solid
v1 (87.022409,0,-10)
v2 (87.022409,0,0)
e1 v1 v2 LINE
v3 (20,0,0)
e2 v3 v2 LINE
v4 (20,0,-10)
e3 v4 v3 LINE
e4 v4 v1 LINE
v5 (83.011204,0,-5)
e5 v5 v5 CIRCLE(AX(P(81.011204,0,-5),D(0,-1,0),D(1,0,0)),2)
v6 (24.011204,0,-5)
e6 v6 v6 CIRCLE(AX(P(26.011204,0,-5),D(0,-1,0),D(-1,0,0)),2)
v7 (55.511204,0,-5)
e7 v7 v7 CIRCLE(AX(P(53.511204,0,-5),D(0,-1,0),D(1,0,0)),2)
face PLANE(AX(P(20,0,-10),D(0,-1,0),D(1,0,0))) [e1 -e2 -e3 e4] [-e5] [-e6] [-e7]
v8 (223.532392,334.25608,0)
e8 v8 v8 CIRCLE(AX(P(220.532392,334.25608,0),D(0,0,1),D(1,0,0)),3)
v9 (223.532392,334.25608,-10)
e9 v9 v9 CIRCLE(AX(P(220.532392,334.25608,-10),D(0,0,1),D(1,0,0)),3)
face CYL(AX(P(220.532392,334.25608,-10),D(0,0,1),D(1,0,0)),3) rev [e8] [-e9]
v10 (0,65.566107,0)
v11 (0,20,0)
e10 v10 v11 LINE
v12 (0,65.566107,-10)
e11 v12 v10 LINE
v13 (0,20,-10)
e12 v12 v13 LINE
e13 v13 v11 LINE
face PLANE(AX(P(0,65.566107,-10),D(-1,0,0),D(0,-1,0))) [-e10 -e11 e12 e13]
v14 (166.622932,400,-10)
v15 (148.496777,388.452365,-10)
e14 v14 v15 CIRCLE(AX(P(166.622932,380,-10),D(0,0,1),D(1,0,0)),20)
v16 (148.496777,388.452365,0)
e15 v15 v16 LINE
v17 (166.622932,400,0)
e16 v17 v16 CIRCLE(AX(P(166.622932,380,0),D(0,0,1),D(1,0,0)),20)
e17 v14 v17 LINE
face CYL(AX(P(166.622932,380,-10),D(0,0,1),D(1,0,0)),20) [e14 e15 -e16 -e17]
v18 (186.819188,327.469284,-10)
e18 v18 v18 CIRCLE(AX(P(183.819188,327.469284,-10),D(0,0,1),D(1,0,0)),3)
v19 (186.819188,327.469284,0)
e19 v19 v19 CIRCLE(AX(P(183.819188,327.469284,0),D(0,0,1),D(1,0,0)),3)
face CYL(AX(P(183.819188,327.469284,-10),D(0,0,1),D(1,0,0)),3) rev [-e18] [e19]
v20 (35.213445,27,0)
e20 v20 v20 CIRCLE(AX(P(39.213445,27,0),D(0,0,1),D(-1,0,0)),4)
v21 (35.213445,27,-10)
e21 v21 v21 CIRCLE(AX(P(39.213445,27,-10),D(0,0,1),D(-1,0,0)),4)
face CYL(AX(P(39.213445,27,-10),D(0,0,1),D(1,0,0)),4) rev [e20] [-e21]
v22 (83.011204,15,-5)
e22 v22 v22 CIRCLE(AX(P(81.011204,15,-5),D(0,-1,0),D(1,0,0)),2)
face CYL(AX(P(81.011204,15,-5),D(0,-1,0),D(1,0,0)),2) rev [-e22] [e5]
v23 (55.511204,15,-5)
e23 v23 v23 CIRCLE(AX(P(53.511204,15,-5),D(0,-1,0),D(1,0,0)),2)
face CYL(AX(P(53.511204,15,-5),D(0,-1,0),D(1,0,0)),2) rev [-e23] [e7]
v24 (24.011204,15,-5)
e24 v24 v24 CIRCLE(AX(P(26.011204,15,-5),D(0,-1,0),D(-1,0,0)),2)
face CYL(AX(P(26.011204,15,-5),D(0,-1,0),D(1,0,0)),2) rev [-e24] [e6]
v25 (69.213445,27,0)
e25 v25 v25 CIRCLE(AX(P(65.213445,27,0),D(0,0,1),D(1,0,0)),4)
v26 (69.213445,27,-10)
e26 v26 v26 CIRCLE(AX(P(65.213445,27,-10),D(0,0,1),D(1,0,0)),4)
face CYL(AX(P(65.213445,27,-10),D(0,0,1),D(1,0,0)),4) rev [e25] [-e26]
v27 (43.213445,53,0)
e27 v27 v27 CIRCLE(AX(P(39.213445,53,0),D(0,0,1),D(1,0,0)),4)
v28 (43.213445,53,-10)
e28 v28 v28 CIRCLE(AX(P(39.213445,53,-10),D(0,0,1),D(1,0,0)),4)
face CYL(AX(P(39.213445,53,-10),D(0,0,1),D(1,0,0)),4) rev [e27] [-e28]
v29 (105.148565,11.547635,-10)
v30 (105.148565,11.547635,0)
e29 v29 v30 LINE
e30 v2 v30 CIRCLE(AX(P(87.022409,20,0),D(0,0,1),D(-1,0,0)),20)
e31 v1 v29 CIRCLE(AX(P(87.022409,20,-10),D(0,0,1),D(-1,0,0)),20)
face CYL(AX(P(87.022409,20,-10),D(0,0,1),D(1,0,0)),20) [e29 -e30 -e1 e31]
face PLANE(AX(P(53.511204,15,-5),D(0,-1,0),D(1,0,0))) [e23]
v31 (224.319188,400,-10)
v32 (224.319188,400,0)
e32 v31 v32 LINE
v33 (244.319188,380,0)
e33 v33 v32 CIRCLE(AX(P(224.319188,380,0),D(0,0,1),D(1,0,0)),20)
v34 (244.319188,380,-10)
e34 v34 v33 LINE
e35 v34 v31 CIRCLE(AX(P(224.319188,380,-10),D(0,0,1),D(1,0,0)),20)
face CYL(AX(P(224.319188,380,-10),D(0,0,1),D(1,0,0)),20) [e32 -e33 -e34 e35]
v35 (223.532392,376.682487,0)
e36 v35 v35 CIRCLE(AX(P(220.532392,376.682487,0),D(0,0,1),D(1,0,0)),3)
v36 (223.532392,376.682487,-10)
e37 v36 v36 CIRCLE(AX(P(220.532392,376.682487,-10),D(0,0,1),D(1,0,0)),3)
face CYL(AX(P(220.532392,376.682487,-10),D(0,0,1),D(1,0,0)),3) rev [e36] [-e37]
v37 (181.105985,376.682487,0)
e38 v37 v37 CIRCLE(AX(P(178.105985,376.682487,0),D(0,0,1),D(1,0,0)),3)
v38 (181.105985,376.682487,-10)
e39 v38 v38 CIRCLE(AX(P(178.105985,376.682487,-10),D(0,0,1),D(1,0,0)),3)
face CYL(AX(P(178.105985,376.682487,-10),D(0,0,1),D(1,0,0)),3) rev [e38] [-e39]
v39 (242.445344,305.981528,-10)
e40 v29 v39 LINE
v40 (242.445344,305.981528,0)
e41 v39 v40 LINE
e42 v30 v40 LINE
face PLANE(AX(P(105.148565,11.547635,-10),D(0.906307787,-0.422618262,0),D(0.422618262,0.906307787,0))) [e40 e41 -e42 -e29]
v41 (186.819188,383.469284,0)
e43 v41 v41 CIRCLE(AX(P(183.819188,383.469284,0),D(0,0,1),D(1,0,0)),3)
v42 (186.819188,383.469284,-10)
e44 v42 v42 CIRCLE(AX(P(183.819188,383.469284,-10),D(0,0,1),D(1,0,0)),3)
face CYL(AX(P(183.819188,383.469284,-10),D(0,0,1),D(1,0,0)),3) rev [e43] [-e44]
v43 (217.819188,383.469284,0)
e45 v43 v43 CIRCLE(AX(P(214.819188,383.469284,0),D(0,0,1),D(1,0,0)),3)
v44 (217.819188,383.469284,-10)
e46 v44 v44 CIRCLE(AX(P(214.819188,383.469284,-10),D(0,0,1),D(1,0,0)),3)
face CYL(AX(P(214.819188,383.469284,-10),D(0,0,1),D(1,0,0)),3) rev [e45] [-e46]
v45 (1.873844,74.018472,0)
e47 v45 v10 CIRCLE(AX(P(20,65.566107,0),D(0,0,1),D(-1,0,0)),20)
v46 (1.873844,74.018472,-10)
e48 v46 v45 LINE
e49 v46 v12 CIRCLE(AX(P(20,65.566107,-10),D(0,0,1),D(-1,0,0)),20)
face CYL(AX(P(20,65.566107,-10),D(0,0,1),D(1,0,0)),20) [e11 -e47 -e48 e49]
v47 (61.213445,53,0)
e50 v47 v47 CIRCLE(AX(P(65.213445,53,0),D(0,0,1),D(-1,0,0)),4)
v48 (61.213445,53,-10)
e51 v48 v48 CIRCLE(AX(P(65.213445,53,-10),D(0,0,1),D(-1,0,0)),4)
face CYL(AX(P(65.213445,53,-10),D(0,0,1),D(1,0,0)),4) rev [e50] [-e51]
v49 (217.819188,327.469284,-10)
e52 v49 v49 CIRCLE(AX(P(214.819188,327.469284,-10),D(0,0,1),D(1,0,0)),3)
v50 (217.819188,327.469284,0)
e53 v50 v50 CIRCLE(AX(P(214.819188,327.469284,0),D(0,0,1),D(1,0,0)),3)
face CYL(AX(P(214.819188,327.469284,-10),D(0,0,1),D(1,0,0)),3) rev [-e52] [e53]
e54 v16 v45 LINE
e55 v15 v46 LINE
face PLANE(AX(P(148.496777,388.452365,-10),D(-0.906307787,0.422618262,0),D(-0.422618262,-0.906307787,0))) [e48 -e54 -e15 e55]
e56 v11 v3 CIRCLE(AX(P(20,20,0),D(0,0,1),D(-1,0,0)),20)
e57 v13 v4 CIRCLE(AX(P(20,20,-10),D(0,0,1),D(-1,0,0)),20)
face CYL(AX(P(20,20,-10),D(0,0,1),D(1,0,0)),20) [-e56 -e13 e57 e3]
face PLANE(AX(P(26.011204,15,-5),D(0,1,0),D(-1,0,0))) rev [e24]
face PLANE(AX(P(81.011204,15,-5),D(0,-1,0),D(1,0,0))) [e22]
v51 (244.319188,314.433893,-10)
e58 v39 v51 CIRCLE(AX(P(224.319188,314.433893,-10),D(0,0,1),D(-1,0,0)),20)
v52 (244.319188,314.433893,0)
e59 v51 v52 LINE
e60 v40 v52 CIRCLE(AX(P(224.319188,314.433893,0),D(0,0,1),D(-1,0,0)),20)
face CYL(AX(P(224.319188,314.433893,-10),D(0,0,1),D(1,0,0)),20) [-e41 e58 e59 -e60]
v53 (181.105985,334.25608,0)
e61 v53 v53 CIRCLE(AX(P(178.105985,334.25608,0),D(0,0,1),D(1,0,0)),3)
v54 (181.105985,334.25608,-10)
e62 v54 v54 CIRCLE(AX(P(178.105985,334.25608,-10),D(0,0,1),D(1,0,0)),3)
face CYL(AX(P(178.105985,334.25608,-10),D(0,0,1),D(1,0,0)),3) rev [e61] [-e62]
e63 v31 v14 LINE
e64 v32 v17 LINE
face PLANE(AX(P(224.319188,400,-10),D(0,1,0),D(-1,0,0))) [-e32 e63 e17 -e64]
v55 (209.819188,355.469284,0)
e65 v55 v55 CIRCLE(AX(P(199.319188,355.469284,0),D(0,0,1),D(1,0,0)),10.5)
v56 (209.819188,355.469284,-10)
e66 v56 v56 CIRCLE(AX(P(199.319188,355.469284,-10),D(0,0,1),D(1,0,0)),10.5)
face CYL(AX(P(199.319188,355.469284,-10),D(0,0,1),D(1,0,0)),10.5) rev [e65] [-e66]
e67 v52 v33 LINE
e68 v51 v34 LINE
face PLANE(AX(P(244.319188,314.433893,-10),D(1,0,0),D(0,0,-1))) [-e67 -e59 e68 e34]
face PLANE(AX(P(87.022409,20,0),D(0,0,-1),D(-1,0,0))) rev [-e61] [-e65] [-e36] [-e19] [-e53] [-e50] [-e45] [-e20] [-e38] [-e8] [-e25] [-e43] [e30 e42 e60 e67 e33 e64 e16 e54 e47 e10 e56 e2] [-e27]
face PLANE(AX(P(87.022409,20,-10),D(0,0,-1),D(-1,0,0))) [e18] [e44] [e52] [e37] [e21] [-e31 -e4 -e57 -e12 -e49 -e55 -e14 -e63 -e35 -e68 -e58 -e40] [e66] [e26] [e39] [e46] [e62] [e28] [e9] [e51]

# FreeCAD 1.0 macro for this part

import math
import FreeCAD as App
import Part
import Sketcher
from FreeCAD import Vector
Q = App.Units.Quantity

doc = App.newDocument("Part")
params = doc.addObject("Spreadsheet::Sheet", "Params")
for row, (alias, value) in enumerate([
    ("sketch1_diameter", "8 mm"),
    ("sketch1_diameter2", "6 mm"),
    ("sketch1_diameter3", "21 mm"),
    ("sketch1_radius", "20 mm"),
    ("pad1_length", "10 mm"),
    ("sketch2_diameter", "4 mm"),
    ("pocket1_length", "15 mm"),
], start=1):
    params.set(f"A{row}", alias)
    params.set(f"B{row}", "=" + value)
    params.setAlias(f"B{row}", alias)

body = doc.addObject("PartDesign::Body", "Body")

# Sketch on XY plane
sketch1 = body.newObject("Sketcher::SketchObject", "Sketch")
sketch1.AttachmentSupport = (doc.getObject("XY_Plane"), [""])
sketch1.MapMode = "FlatFace"
sketch1.addGeometry(Part.LineSegment(Vector(20, 0, 0), Vector(87, 0, 0)), False)
sketch1.addGeometry(Part.ArcOfCircle(Part.Circle(Vector(87, 20, 0), Vector(0, 0, 1), 20), math.radians(-90), math.radians(-25)), False)
sketch1.addGeometry(Part.LineSegment(Vector(105.1, 11.5, 0), Vector(242.4, 306, 0)), False)
sketch1.addGeometry(Part.ArcOfCircle(Part.Circle(Vector(224.3, 314.4, 0), Vector(0, 0, 1), 20), math.radians(-25), math.radians(0)), False)
sketch1.addGeometry(Part.LineSegment(Vector(244.3, 314.4, 0), Vector(244.3, 380, 0)), False)
sketch1.addGeometry(Part.ArcOfCircle(Part.Circle(Vector(224.3, 380, 0), Vector(0, 0, 1), 20), math.radians(0), math.radians(90)), False)
sketch1.addGeometry(Part.LineSegment(Vector(224.3, 400, 0), Vector(166.6, 400, 0)), False)
sketch1.addGeometry(Part.ArcOfCircle(Part.Circle(Vector(166.6, 380, 0), Vector(0, 0, 1), 20), math.radians(90), math.radians(155)), False)
sketch1.addGeometry(Part.LineSegment(Vector(148.5, 388.5, 0), Vector(1.9, 74, 0)), False)
sketch1.addGeometry(Part.ArcOfCircle(Part.Circle(Vector(20, 65.6, 0), Vector(0, 0, 1), 20), math.radians(155), math.radians(180)), False)
sketch1.addGeometry(Part.LineSegment(Vector(0, 65.6, 0), Vector(0, 20, 0)), False)
sketch1.addGeometry(Part.ArcOfCircle(Part.Circle(Vector(20, 20, 0), Vector(0, 0, 1), 20), math.radians(180), math.radians(270)), False)
sketch1.addGeometry(Part.Circle(Vector(39.2, 27, 0), Vector(0, 0, 1), 4), False)
sketch1.addGeometry(Part.Circle(Vector(39.2, 53, 0), Vector(0, 0, 1), 4), False)
sketch1.addGeometry(Part.Circle(Vector(65.2, 27, 0), Vector(0, 0, 1), 4), False)
sketch1.addGeometry(Part.Circle(Vector(65.2, 53, 0), Vector(0, 0, 1), 4), False)
sketch1.addGeometry(Part.Circle(Vector(183.8, 327.5, 0), Vector(0, 0, 1), 3), False)
sketch1.addGeometry(Part.Circle(Vector(178.1, 334.3, 0), Vector(0, 0, 1), 3), False)
sketch1.addGeometry(Part.Circle(Vector(214.8, 327.5, 0), Vector(0, 0, 1), 3), False)
sketch1.addGeometry(Part.Circle(Vector(220.5, 334.3, 0), Vector(0, 0, 1), 3), False)
sketch1.addGeometry(Part.Circle(Vector(199.3, 355.5, 0), Vector(0, 0, 1), 10.5), False)
sketch1.addGeometry(Part.Circle(Vector(178.1, 376.7, 0), Vector(0, 0, 1), 3), False)
sketch1.addGeometry(Part.Circle(Vector(183.8, 383.5, 0), Vector(0, 0, 1), 3), False)
sketch1.addGeometry(Part.Circle(Vector(214.8, 383.5, 0), Vector(0, 0, 1), 3), False)
sketch1.addGeometry(Part.Circle(Vector(220.5, 376.7, 0), Vector(0, 0, 1), 3), False)
sketch1.addConstraint(Sketcher.Constraint("Tangent", 0, 2, 1, 1))
sketch1.addConstraint(Sketcher.Constraint("Tangent", 1, 2, 2, 1))
sketch1.addConstraint(Sketcher.Constraint("Tangent", 2, 2, 3, 1))
sketch1.addConstraint(Sketcher.Constraint("Tangent", 3, 2, 4, 1))
sketch1.addConstraint(Sketcher.Constraint("Tangent", 4, 2, 5, 1))
sketch1.addConstraint(Sketcher.Constraint("Tangent", 5, 2, 6, 1))
sketch1.addConstraint(Sketcher.Constraint("Tangent", 6, 2, 7, 1))
sketch1.addConstraint(Sketcher.Constraint("Tangent", 7, 2, 8, 1))
sketch1.addConstraint(Sketcher.Constraint("Tangent", 8, 2, 9, 1))
sketch1.addConstraint(Sketcher.Constraint("Tangent", 9, 2, 10, 1))
sketch1.addConstraint(Sketcher.Constraint("Tangent", 10, 2, 11, 1))
sketch1.addConstraint(Sketcher.Constraint("Tangent", 11, 2, 0, 1))
sketch1.addConstraint(Sketcher.Constraint("Horizontal", 0))
sketch1.addConstraint(Sketcher.Constraint("Vertical", 4))
sketch1.addConstraint(Sketcher.Constraint("Horizontal", 6))
sketch1.addConstraint(Sketcher.Constraint("Vertical", 10))
sketch1.addConstraint(Sketcher.Constraint("Equal", 1, 3))
sketch1.addConstraint(Sketcher.Constraint("Equal", 3, 5))
sketch1.addConstraint(Sketcher.Constraint("Equal", 5, 7))
sketch1.addConstraint(Sketcher.Constraint("Equal", 7, 9))
sketch1.addConstraint(Sketcher.Constraint("Equal", 9, 11))
sketch1.addConstraint(Sketcher.Constraint("Equal", 12, 13))
sketch1.addConstraint(Sketcher.Constraint("Equal", 13, 14))
sketch1.addConstraint(Sketcher.Constraint("Equal", 14, 15))
sketch1.addConstraint(Sketcher.Constraint("Equal", 16, 17))
sketch1.addConstraint(Sketcher.Constraint("Equal", 17, 18))
sketch1.addConstraint(Sketcher.Constraint("Equal", 18, 19))
sketch1.addConstraint(Sketcher.Constraint("Equal", 19, 21))
sketch1.addConstraint(Sketcher.Constraint("Equal", 21, 22))
sketch1.addConstraint(Sketcher.Constraint("Equal", 22, 23))
sketch1.addConstraint(Sketcher.Constraint("Equal", 23, 24))
sketch1.addConstraint(Sketcher.Constraint("PointOnObject", 0, 2, -1))
sketch1.addConstraint(Sketcher.Constraint("PointOnObject", 9, 2, -2))
sketch1.addConstraint(Sketcher.Constraint("Parallel", 2, 8))
sketch1.addConstraint(Sketcher.Constraint("Horizontal", 12, 3, 14, 3))
sketch1.addConstraint(Sketcher.Constraint("Horizontal", 13, 3, 15, 3))
sketch1.addConstraint(Sketcher.Constraint("Horizontal", 16, 3, 18, 3))
sketch1.addConstraint(Sketcher.Constraint("Horizontal", 17, 3, 19, 3))
sketch1.addConstraint(Sketcher.Constraint("Horizontal", 22, 3, 23, 3))
sketch1.addConstraint(Sketcher.Constraint("Horizontal", 21, 3, 24, 3))
sketch1.addConstraint(Sketcher.Constraint("Vertical", 12, 3, 13, 3))
sketch1.addConstraint(Sketcher.Constraint("Vertical", 14, 3, 15, 3))
sketch1.addConstraint(Sketcher.Constraint("Vertical", 17, 3, 21, 3))
sketch1.addConstraint(Sketcher.Constraint("Vertical", 16, 3, 22, 3))
sketch1.addConstraint(Sketcher.Constraint("Vertical", 18, 3, 23, 3))
sketch1.addConstraint(Sketcher.Constraint("Vertical", 19, 3, 24, 3))
sketch1.addConstraint(Sketcher.Constraint("Diameter", 12, Q("8 mm")))
sketch1.addConstraint(Sketcher.Constraint("Diameter", 16, Q("6 mm")))
sketch1.addConstraint(Sketcher.Constraint("Diameter", 20, Q("21 mm")))
sketch1.addConstraint(Sketcher.Constraint("Radius", 1, Q("20 mm")))
sketch1.addConstraint(Sketcher.Constraint("Angle", 2, Q("65 deg")))
sketch1.addConstraint(Sketcher.Constraint("DistanceY", -1, 1, 5, 3, Q("380 mm")))
sketch1.addConstraint(Sketcher.Constraint("DistanceY", -1, 1, 12, 3, Q("27 mm")))
sketch1.addConstraint(Sketcher.Constraint("DistanceY", -1, 1, 13, 3, Q("53 mm")))
sketch1.addConstraint(Sketcher.Constraint("DistanceX", 12, 3, 14, 3, Q("26 mm")))
sketch1.addConstraint(Sketcher.Constraint("DistanceX", 16, 3, 18, 3, Q("31 mm")))
sketch1.addConstraint(Sketcher.Constraint("DistanceY", 16, 3, 20, 3, Q("28 mm")))
sketch1.addConstraint(Sketcher.Constraint("DistanceX", 20, 3, 5, 3, Q("25 mm")))
sketch1.addConstraint(Sketcher.Constraint("DistanceY", 20, 3, 22, 3, Q("28 mm")))
sketch1.addConstraint(Sketcher.Constraint("DistanceX", 16, 3, 3, 3, Q("40.5 mm")))
sketch1.addConstraint(Sketcher.Constraint("DistanceX", 0, 1, 0, 2, Q("67.022409 mm")))
sketch1.addConstraint(Sketcher.Constraint("DistanceX", 8, 2, 13, 3, Q("37.339601 mm")))
sketch1.addConstraint(Sketcher.Constraint("DistanceX", 6, 2, 6, 1, Q("57.696256 mm")))
sketch1.addConstraint(Sketcher.Constraint("DistanceY", 4, 1, 4, 2, Q("65.566107 mm")))
sketch1.addConstraint(Sketcher.Constraint("DistanceY", -1, 1, 17, 3, Q("334.25608 mm")))
sketch1.addConstraint(Sketcher.Constraint("DistanceX", -1, 1, 19, 3, Q("220.532392 mm")))
sketch1.addConstraint(Sketcher.Constraint("DistanceY", 3, 3, 16, 3, Q("13.03539 mm")))
sketch1.addConstraint(Sketcher.Constraint("DistanceX", 15, 3, 17, 3, Q("112.892539 mm")))
sketch1.addConstraint(Sketcher.Constraint("DistanceY", 21, 3, 7, 2, Q("11.769878 mm")))
sketch1.setExpression("Constraints[46]", "Params.sketch1_diameter")
sketch1.setExpression("Constraints[47]", "Params.sketch1_diameter2")
sketch1.setExpression("Constraints[48]", "Params.sketch1_diameter3")
sketch1.setExpression("Constraints[49]", "Params.sketch1_radius")
pad1 = body.newObject("PartDesign::Pad", "Pad")
pad1.Profile = sketch1
pad1.setExpression("Length", "Params.pad1_length")
pad1.Reversed = True

# Sketch on XZ plane
sketch2 = body.newObject("Sketcher::SketchObject", "Sketch001")
sketch2.AttachmentSupport = (doc.getObject("XZ_Plane"), [""])
sketch2.MapMode = "FlatFace"
sketch2.addGeometry(Part.Circle(Vector(53.5, -5, 0), Vector(0, 0, 1), 2), False)
sketch2.addGeometry(Part.Circle(Vector(81, -5, 0), Vector(0, 0, 1), 2), False)
sketch2.addGeometry(Part.Circle(Vector(26, -5, 0), Vector(0, 0, 1), 2), False)
sketch2.addConstraint(Sketcher.Constraint("Equal", 0, 1))
sketch2.addConstraint(Sketcher.Constraint("Equal", 1, 2))
sketch2.addConstraint(Sketcher.Constraint("Horizontal", 0, 3, 1, 3))
sketch2.addConstraint(Sketcher.Constraint("Horizontal", 1, 3, 2, 3))
sketch2.addConstraint(Sketcher.Constraint("Diameter", 0, Q("4 mm")))
sketch2.addConstraint(Sketcher.Constraint("DistanceY", 0, 3, -1, 1, Q("5 mm")))
sketch2.addConstraint(Sketcher.Constraint("DistanceX", 2, 3, 1, 3, Q("55 mm")))
sketch2.addConstraint(Sketcher.Constraint("DistanceX", 0, 3, 1, 3, Q("27.5 mm")))
sketch2.addConstraint(Sketcher.Constraint("DistanceX", -1, 1, 0, 3, Q("53.511204 mm")))
sketch2.setExpression("Constraints[4]", "Params.sketch2_diameter")
pocket1 = body.newObject("PartDesign::Pocket", "Pocket")
pocket1.Profile = sketch2
pocket1.setExpression("Length", "Params.pocket1_length")

doc.recompute()
